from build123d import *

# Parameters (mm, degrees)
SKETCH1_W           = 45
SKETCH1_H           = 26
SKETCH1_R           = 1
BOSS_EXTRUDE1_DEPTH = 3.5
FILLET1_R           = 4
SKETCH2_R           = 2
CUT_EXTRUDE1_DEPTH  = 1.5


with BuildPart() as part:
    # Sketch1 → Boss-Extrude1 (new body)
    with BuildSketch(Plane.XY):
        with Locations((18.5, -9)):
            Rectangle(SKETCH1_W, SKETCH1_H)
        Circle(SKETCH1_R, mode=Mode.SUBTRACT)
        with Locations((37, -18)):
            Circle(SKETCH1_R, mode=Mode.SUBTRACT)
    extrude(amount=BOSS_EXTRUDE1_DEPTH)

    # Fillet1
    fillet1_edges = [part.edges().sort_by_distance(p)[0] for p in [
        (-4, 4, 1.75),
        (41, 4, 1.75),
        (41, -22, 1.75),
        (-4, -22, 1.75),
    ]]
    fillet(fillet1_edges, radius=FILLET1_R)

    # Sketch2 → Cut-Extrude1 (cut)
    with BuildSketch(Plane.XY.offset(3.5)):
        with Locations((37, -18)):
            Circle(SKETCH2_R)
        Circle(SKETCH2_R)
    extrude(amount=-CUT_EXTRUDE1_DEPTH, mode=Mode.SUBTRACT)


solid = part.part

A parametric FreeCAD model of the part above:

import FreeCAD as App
import Part
import Sketcher


def edges_at(feature, points):
    """Names of the edges that pass closest to the given points."""
    edges = feature.Shape.Edges
    near = lambda p: min(range(len(edges)), key=lambda i: edges[i].distToShape(Part.Vertex(*p))[0])
    return sorted({f"Edge{near(p) + 1}" for p in points})


def add_polygon(sketch, points):
    """Adds a closed chain of lines whose ends are joined by coincident constraints."""
    first, n = sketch.GeometryCount, len(points)
    for a, b in zip(points, points[1:] + points[:1]):
        sketch.addGeometry(Part.LineSegment(App.Vector(*a, 0), App.Vector(*b, 0)), False)
    for i in range(n):
        sketch.addConstraint(Sketcher.Constraint("Coincident", first + i, 2, first + (i + 1) % n, 1))

doc = App.newDocument("Part")
body = doc.addObject("PartDesign::Body", "Body")

sketch1 = body.newObject("Sketcher::SketchObject", "Sketch")
sketch1.AttachmentSupport = (doc.getObject("XY_Plane"), [""])
sketch1.MapMode = "FlatFace"
add_polygon(sketch1, [(-4, 4), (-4, -22), (41, -22), (41, 4)])
sketch1.addGeometry(Part.Circle(App.Vector(37, -18, 0), App.Vector(0, 0, 1), 1), False)
sketch1.addGeometry(Part.Circle(App.Vector(0, 0, 0), App.Vector(0, 0, 1), 1), False)
sketch1.addConstraint([
    Sketcher.Constraint("Vertical", 0),
    Sketcher.Constraint("Horizontal", 1),
    Sketcher.Constraint("Vertical", 2),
    Sketcher.Constraint("Horizontal", 3),
    Sketcher.Constraint("Coincident", 5, 3, -1, 1),
    Sketcher.Constraint("Equal", 4, 5),
    Sketcher.Constraint("Diameter", 4, 2.0),
    Sketcher.Constraint("DistanceX", 1, 1, 1, 2, 45.0),
    Sketcher.Constraint("DistanceY", 0, 2, 0, 1, 26.0),
    Sketcher.Constraint("DistanceX", -1, 1, 4, 3, 37.0),
    Sketcher.Constraint("DistanceY", 4, 3, -1, 1, 18.0),
    Sketcher.Constraint("DistanceX", 0, 2, -1, 1, 4.0),
    Sketcher.Constraint("DistanceY", 0, 2, -1, 1, 22.0),
])
pad1 = body.newObject("PartDesign::Pad", "Pad")
pad1.Profile = sketch1
pad1.Length = 3.5
doc.recompute()

fillet = body.newObject("PartDesign::Fillet", "Fillet")
fillet.Base = (pad1, edges_at(pad1, [
    (-4, 4, 1.75),
    (41, 4, 1.75),
    (41, -22, 1.75),
    (-4, -22, 1.75),
]))
fillet.Radius = 4

sketch2 = body.newObject("Sketcher::SketchObject", "Sketch001")
sketch2.AttachmentSupport = (doc.getObject("XY_Plane"), [""])
sketch2.MapMode = "FlatFace"
sketch2.AttachmentOffset = App.Placement(App.Vector(0, 0, 3.5), App.Rotation())
sketch2.addGeometry([
    Part.Circle(App.Vector(37, -18, 0), App.Vector(0, 0, 1), 2),
    Part.Circle(App.Vector(0, 0, 0), App.Vector(0, 0, 1), 2),
], False)
sketch2.addConstraint([
    Sketcher.Constraint("Coincident", 1, 3, -1, 1),
    Sketcher.Constraint("Equal", 0, 1),
    Sketcher.Constraint("Diameter", 0, 4.0),
    Sketcher.Constraint("DistanceX", -1, 1, 0, 3, 37.0),
    Sketcher.Constraint("DistanceY", 0, 3, -1, 1, 18.0),
])
pocket1 = body.newObject("PartDesign::Pocket", "Pocket")
pocket1.Profile = sketch2
pocket1.Length = 1.5

doc.recompute()
